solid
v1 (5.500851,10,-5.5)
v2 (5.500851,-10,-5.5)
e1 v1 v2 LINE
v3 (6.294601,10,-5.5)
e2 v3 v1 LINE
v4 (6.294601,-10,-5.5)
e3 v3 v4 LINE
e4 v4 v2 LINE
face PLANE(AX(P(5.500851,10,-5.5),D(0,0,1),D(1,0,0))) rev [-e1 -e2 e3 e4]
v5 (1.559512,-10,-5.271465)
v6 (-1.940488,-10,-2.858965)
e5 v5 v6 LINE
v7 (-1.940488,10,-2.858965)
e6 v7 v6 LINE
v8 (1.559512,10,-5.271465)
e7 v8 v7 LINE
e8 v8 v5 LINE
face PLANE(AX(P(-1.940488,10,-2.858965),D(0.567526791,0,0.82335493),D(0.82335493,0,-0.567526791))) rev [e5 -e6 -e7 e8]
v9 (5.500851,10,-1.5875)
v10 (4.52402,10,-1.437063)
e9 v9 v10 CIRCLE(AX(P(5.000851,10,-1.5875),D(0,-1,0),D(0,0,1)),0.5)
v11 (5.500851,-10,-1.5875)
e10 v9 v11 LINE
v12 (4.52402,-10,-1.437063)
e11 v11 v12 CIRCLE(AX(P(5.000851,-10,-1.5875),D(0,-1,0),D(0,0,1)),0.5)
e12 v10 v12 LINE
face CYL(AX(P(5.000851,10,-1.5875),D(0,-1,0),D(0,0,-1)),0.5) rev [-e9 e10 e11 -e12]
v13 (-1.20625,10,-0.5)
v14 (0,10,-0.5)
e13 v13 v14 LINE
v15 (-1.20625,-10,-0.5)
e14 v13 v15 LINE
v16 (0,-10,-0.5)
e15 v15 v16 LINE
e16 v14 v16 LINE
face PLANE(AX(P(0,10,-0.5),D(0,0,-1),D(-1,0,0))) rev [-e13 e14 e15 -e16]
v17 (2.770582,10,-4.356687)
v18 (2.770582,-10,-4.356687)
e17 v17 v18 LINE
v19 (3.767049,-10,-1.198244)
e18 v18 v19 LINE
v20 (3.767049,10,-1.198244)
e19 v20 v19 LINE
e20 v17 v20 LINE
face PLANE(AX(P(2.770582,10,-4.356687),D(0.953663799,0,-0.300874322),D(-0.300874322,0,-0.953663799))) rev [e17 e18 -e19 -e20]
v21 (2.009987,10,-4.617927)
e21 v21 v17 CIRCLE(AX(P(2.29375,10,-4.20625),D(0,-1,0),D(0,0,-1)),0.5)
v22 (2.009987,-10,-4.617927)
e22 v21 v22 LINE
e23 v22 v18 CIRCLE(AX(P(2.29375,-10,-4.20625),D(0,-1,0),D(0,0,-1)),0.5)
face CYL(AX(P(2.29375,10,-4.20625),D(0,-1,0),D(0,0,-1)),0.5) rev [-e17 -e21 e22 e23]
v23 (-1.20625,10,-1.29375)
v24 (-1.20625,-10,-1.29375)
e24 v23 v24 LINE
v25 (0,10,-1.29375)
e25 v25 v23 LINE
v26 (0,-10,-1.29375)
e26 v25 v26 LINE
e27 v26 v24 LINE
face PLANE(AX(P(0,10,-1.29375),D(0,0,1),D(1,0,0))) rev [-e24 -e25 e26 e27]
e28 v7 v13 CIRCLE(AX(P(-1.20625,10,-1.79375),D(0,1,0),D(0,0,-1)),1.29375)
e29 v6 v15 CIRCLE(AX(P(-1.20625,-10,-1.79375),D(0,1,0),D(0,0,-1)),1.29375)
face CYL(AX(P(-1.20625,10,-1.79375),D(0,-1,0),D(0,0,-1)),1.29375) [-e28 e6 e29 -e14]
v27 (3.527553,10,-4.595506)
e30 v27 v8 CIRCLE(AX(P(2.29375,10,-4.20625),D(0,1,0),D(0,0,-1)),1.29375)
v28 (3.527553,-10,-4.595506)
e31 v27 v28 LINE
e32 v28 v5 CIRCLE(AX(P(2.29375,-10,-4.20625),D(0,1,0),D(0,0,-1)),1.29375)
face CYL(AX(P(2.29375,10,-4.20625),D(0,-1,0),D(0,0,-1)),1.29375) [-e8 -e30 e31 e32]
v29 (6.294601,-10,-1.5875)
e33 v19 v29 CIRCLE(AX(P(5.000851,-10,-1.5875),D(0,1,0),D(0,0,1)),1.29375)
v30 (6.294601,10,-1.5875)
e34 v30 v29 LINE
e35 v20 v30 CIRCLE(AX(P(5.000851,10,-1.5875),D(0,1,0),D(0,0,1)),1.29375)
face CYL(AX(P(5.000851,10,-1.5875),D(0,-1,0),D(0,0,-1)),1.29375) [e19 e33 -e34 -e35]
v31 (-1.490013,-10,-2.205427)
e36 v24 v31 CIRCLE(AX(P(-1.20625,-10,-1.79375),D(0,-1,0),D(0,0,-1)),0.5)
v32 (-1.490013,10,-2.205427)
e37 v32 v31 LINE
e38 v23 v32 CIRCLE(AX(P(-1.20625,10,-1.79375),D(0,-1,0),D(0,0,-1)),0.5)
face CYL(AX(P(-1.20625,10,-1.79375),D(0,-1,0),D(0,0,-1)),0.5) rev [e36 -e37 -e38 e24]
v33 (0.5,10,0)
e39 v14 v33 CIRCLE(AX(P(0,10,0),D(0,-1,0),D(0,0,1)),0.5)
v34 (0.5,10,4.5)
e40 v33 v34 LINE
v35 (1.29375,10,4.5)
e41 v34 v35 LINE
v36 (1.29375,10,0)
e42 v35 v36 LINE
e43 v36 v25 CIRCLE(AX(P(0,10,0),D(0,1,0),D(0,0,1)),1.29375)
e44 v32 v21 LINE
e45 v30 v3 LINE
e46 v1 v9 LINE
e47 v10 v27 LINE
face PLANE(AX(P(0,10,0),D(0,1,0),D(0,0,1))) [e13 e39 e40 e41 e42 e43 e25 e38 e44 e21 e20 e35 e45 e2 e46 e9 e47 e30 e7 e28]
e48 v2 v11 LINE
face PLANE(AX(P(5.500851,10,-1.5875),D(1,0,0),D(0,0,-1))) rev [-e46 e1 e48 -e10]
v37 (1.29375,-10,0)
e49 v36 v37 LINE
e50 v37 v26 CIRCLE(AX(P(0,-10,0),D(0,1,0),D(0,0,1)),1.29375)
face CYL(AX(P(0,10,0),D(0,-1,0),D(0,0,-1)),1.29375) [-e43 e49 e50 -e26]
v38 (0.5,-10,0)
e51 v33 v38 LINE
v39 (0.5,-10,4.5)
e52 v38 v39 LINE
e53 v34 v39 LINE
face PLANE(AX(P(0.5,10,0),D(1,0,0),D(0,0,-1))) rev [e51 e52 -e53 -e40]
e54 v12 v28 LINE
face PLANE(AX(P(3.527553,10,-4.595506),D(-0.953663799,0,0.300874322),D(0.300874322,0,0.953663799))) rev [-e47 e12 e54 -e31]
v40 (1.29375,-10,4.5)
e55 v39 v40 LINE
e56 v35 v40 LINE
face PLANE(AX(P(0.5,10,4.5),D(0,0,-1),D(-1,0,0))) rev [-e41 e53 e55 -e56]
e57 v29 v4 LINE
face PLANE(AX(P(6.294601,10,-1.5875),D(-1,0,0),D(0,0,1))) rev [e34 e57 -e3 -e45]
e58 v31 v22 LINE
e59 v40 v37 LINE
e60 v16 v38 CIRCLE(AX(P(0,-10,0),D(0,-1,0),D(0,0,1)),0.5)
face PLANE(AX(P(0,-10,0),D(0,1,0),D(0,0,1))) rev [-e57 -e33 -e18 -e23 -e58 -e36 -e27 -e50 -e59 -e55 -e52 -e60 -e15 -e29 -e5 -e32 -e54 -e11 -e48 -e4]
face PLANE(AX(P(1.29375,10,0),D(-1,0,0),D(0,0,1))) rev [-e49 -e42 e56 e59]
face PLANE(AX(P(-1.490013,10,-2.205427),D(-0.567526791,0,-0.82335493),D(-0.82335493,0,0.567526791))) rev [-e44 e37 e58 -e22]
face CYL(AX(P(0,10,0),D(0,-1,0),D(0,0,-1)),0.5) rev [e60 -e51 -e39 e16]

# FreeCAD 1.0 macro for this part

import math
import FreeCAD as App
import Part
import Sketcher

V = App.Vector

doc = App.newDocument("Part")
params = doc.addObject("Spreadsheet::Sheet", "Params")
for row, (alias, value) in enumerate([
    ("sketch1_radius", "0.5 mm"),
    ("sketch1_height", "4.5 mm"),
    ("pad1_length", "20 mm"),
], start=1):
    params.set(f"A{row}", alias)
    params.set(f"B{row}", "=" + value)
    params.setAlias(f"B{row}", alias)

body = doc.addObject("PartDesign::Body", "Body")

# Sketch on XZ plane
sketch1 = doc.addObject("Sketcher::SketchObject", "Sketch")
body.addObject(sketch1)
sketch1.AttachmentSupport = (doc.XZ_Plane, [""])
sketch1.MapMode = "FlatFace"
sketch1.addGeometry(Part.LineSegment(V(1.29, 4.5, 0), V(1.29, 0, 0)), False)
sketch1.addGeometry(Part.ArcOfCircle(Part.Circle(V(0, 0, 0), V(0, 0, 1), 1.29), math.radians(-90), math.radians(0)), False)
sketch1.addGeometry(Part.LineSegment(V(0, -1.29, 0), V(-1.21, -1.29, 0)), False)
sketch1.addGeometry(Part.ArcOfCircle(Part.Circle(V(-1.21, -1.79, 0), V(0, 0, 1), 0.5), math.radians(90), math.radians(235)), False)
sketch1.addGeometry(Part.LineSegment(V(-1.49, -2.21, 0), V(2.01, -4.62, 0)), False)
sketch1.addGeometry(Part.ArcOfCircle(Part.Circle(V(2.29, -4.21, 0), V(0, 0, 1), 0.5), math.radians(-125), math.radians(-18)), False)
sketch1.addGeometry(Part.LineSegment(V(2.77, -4.36, 0), V(3.77, -1.2, 0)), False)
sketch1.addGeometry(Part.ArcOfCircle(Part.Circle(V(5, -1.59, 0), V(0, 0, 1), 1.29), math.radians(0), math.radians(162)), False)
sketch1.addGeometry(Part.LineSegment(V(6.29, -1.59, 0), V(6.29, -5.5, 0)), False)
sketch1.addGeometry(Part.LineSegment(V(6.29, -5.5, 0), V(5.5, -5.5, 0)), False)
sketch1.addGeometry(Part.LineSegment(V(5.5, -5.5, 0), V(5.5, -1.59, 0)), False)
sketch1.addGeometry(Part.ArcOfCircle(Part.Circle(V(5, -1.59, 0), V(0, 0, 1), 0.5), math.radians(0), math.radians(162)), False)
sketch1.addGeometry(Part.LineSegment(V(4.52, -1.44, 0), V(3.53, -4.6, 0)), False)
sketch1.addGeometry(Part.ArcOfCircle(Part.Circle(V(2.29, -4.21, 0), V(0, 0, 1), 1.29), math.radians(-125), math.radians(-18)), False)
sketch1.addGeometry(Part.LineSegment(V(1.56, -5.27, 0), V(-1.94, -2.86, 0)), False)
sketch1.addGeometry(Part.ArcOfCircle(Part.Circle(V(-1.21, -1.79, 0), V(0, 0, 1), 1.29), math.radians(90), math.radians(235)), False)
sketch1.addGeometry(Part.LineSegment(V(-1.21, -0.5, 0), V(0, -0.5, 0)), False)
sketch1.addGeometry(Part.ArcOfCircle(Part.Circle(V(0, 0, 0), V(0, 0, 1), 0.5), math.radians(-90), math.radians(0)), False)
sketch1.addGeometry(Part.LineSegment(V(0.5, 0, 0), V(0.5, 4.5, 0)), False)
sketch1.addGeometry(Part.LineSegment(V(0.5, 4.5, 0), V(1.29, 4.5, 0)), False)
sketch1.addConstraint(Sketcher.Constraint("Tangent", 0, 2, 1, 2))
sketch1.addConstraint(Sketcher.Constraint("Tangent", 1, 1, 2, 1))
sketch1.addConstraint(Sketcher.Constraint("Tangent", 2, 2, 3, 1))
sketch1.addConstraint(Sketcher.Constraint("Tangent", 3, 2, 4, 1))
sketch1.addConstraint(Sketcher.Constraint("Tangent", 4, 2, 5, 1))
sketch1.addConstraint(Sketcher.Constraint("Tangent", 5, 2, 6, 1))
sketch1.addConstraint(Sketcher.Constraint("Tangent", 6, 2, 7, 2))
sketch1.addConstraint(Sketcher.Constraint("Tangent", 7, 1, 8, 1))
sketch1.addConstraint(Sketcher.Constraint("Coincident", 8, 2, 9, 1))
sketch1.addConstraint(Sketcher.Constraint("Coincident", 9, 2, 10, 1))
sketch1.addConstraint(Sketcher.Constraint("Tangent", 10, 2, 11, 1))
sketch1.addConstraint(Sketcher.Constraint("Tangent", 11, 2, 12, 1))
sketch1.addConstraint(Sketcher.Constraint("Tangent", 12, 2, 13, 2))
sketch1.addConstraint(Sketcher.Constraint("Tangent", 13, 1, 14, 1))
sketch1.addConstraint(Sketcher.Constraint("Tangent", 14, 2, 15, 2))
sketch1.addConstraint(Sketcher.Constraint("Tangent", 15, 1, 16, 1))
sketch1.addConstraint(Sketcher.Constraint("Tangent", 16, 2, 17, 1))
sketch1.addConstraint(Sketcher.Constraint("Tangent", 17, 2, 18, 1))
sketch1.addConstraint(Sketcher.Constraint("Coincident", 18, 2, 19, 1))
sketch1.addConstraint(Sketcher.Constraint("Coincident", 19, 2, 0, 1))
sketch1.addConstraint(Sketcher.Constraint("Vertical", 0))
sketch1.addConstraint(Sketcher.Constraint("Horizontal", 2))
sketch1.addConstraint(Sketcher.Constraint("Vertical", 8))
sketch1.addConstraint(Sketcher.Constraint("Horizontal", 9))
sketch1.addConstraint(Sketcher.Constraint("Vertical", 10))
sketch1.addConstraint(Sketcher.Constraint("Horizontal", 16))
sketch1.addConstraint(Sketcher.Constraint("Vertical", 18))
sketch1.addConstraint(Sketcher.Constraint("Horizontal", 19))
sketch1.addConstraint(Sketcher.Constraint("Coincident", 1, 3, -1, 1))
sketch1.addConstraint(Sketcher.Constraint("Coincident", 17, 3, -1, 1))
sketch1.addConstraint(Sketcher.Constraint("Coincident", 11, 3, 7, 3))
sketch1.addConstraint(Sketcher.Constraint("Coincident", 13, 3, 5, 3))
sketch1.addConstraint(Sketcher.Constraint("Coincident", 15, 3, 3, 3))
sketch1.addConstraint(Sketcher.Constraint("Equal", 3, 5))
sketch1.addConstraint(Sketcher.Constraint("Equal", 1, 7))
sketch1.addConstraint(Sketcher.Constraint("Equal", 5, 11))
sketch1.addConstraint(Sketcher.Constraint("Equal", 7, 13))
sketch1.addConstraint(Sketcher.Constraint("Equal", 13, 15))
sketch1.addConstraint(Sketcher.Constraint("Radius", 3, 0.5))
sketch1.addConstraint(Sketcher.Constraint("DistanceY", 0, 2, 0, 1, 4.5))
sketch1.addConstraint(Sketcher.Constraint("DistanceY", 8, 2, -1, 1, 5.5))
sketch1.addConstraint(Sketcher.Constraint("DistanceX", 3, 3, 5, 3, 3.5))
sketch1.addConstraint(Sketcher.Constraint("DistanceX", 3, 3, 0, 2, 2.5))
sketch1.addConstraint(Sketcher.Constraint("Radius", 1, 1.29375))
sketch1.addConstraint(Sketcher.Constraint("DistanceY", 8, 2, 8, 1, 3.9125))
sketch1.addConstraint(Sketcher.Constraint("Distance", 4, 4.250901))
sketch1.addConstraint(Sketcher.Constraint("DistanceX", -1, 1, 7, 1, 6.294601))
sketch1.setExpression("Constraints[38]", "Params.sketch1_radius")
sketch1.setExpression("Constraints[39]", "Params.sketch1_height")
pad1 = doc.addObject("PartDesign::Pad", "Pad")
body.addObject(pad1)
pad1.Profile = sketch1
pad1.setExpression("Length", "Params.pad1_length")
pad1.Midplane = True

doc.recompute()
